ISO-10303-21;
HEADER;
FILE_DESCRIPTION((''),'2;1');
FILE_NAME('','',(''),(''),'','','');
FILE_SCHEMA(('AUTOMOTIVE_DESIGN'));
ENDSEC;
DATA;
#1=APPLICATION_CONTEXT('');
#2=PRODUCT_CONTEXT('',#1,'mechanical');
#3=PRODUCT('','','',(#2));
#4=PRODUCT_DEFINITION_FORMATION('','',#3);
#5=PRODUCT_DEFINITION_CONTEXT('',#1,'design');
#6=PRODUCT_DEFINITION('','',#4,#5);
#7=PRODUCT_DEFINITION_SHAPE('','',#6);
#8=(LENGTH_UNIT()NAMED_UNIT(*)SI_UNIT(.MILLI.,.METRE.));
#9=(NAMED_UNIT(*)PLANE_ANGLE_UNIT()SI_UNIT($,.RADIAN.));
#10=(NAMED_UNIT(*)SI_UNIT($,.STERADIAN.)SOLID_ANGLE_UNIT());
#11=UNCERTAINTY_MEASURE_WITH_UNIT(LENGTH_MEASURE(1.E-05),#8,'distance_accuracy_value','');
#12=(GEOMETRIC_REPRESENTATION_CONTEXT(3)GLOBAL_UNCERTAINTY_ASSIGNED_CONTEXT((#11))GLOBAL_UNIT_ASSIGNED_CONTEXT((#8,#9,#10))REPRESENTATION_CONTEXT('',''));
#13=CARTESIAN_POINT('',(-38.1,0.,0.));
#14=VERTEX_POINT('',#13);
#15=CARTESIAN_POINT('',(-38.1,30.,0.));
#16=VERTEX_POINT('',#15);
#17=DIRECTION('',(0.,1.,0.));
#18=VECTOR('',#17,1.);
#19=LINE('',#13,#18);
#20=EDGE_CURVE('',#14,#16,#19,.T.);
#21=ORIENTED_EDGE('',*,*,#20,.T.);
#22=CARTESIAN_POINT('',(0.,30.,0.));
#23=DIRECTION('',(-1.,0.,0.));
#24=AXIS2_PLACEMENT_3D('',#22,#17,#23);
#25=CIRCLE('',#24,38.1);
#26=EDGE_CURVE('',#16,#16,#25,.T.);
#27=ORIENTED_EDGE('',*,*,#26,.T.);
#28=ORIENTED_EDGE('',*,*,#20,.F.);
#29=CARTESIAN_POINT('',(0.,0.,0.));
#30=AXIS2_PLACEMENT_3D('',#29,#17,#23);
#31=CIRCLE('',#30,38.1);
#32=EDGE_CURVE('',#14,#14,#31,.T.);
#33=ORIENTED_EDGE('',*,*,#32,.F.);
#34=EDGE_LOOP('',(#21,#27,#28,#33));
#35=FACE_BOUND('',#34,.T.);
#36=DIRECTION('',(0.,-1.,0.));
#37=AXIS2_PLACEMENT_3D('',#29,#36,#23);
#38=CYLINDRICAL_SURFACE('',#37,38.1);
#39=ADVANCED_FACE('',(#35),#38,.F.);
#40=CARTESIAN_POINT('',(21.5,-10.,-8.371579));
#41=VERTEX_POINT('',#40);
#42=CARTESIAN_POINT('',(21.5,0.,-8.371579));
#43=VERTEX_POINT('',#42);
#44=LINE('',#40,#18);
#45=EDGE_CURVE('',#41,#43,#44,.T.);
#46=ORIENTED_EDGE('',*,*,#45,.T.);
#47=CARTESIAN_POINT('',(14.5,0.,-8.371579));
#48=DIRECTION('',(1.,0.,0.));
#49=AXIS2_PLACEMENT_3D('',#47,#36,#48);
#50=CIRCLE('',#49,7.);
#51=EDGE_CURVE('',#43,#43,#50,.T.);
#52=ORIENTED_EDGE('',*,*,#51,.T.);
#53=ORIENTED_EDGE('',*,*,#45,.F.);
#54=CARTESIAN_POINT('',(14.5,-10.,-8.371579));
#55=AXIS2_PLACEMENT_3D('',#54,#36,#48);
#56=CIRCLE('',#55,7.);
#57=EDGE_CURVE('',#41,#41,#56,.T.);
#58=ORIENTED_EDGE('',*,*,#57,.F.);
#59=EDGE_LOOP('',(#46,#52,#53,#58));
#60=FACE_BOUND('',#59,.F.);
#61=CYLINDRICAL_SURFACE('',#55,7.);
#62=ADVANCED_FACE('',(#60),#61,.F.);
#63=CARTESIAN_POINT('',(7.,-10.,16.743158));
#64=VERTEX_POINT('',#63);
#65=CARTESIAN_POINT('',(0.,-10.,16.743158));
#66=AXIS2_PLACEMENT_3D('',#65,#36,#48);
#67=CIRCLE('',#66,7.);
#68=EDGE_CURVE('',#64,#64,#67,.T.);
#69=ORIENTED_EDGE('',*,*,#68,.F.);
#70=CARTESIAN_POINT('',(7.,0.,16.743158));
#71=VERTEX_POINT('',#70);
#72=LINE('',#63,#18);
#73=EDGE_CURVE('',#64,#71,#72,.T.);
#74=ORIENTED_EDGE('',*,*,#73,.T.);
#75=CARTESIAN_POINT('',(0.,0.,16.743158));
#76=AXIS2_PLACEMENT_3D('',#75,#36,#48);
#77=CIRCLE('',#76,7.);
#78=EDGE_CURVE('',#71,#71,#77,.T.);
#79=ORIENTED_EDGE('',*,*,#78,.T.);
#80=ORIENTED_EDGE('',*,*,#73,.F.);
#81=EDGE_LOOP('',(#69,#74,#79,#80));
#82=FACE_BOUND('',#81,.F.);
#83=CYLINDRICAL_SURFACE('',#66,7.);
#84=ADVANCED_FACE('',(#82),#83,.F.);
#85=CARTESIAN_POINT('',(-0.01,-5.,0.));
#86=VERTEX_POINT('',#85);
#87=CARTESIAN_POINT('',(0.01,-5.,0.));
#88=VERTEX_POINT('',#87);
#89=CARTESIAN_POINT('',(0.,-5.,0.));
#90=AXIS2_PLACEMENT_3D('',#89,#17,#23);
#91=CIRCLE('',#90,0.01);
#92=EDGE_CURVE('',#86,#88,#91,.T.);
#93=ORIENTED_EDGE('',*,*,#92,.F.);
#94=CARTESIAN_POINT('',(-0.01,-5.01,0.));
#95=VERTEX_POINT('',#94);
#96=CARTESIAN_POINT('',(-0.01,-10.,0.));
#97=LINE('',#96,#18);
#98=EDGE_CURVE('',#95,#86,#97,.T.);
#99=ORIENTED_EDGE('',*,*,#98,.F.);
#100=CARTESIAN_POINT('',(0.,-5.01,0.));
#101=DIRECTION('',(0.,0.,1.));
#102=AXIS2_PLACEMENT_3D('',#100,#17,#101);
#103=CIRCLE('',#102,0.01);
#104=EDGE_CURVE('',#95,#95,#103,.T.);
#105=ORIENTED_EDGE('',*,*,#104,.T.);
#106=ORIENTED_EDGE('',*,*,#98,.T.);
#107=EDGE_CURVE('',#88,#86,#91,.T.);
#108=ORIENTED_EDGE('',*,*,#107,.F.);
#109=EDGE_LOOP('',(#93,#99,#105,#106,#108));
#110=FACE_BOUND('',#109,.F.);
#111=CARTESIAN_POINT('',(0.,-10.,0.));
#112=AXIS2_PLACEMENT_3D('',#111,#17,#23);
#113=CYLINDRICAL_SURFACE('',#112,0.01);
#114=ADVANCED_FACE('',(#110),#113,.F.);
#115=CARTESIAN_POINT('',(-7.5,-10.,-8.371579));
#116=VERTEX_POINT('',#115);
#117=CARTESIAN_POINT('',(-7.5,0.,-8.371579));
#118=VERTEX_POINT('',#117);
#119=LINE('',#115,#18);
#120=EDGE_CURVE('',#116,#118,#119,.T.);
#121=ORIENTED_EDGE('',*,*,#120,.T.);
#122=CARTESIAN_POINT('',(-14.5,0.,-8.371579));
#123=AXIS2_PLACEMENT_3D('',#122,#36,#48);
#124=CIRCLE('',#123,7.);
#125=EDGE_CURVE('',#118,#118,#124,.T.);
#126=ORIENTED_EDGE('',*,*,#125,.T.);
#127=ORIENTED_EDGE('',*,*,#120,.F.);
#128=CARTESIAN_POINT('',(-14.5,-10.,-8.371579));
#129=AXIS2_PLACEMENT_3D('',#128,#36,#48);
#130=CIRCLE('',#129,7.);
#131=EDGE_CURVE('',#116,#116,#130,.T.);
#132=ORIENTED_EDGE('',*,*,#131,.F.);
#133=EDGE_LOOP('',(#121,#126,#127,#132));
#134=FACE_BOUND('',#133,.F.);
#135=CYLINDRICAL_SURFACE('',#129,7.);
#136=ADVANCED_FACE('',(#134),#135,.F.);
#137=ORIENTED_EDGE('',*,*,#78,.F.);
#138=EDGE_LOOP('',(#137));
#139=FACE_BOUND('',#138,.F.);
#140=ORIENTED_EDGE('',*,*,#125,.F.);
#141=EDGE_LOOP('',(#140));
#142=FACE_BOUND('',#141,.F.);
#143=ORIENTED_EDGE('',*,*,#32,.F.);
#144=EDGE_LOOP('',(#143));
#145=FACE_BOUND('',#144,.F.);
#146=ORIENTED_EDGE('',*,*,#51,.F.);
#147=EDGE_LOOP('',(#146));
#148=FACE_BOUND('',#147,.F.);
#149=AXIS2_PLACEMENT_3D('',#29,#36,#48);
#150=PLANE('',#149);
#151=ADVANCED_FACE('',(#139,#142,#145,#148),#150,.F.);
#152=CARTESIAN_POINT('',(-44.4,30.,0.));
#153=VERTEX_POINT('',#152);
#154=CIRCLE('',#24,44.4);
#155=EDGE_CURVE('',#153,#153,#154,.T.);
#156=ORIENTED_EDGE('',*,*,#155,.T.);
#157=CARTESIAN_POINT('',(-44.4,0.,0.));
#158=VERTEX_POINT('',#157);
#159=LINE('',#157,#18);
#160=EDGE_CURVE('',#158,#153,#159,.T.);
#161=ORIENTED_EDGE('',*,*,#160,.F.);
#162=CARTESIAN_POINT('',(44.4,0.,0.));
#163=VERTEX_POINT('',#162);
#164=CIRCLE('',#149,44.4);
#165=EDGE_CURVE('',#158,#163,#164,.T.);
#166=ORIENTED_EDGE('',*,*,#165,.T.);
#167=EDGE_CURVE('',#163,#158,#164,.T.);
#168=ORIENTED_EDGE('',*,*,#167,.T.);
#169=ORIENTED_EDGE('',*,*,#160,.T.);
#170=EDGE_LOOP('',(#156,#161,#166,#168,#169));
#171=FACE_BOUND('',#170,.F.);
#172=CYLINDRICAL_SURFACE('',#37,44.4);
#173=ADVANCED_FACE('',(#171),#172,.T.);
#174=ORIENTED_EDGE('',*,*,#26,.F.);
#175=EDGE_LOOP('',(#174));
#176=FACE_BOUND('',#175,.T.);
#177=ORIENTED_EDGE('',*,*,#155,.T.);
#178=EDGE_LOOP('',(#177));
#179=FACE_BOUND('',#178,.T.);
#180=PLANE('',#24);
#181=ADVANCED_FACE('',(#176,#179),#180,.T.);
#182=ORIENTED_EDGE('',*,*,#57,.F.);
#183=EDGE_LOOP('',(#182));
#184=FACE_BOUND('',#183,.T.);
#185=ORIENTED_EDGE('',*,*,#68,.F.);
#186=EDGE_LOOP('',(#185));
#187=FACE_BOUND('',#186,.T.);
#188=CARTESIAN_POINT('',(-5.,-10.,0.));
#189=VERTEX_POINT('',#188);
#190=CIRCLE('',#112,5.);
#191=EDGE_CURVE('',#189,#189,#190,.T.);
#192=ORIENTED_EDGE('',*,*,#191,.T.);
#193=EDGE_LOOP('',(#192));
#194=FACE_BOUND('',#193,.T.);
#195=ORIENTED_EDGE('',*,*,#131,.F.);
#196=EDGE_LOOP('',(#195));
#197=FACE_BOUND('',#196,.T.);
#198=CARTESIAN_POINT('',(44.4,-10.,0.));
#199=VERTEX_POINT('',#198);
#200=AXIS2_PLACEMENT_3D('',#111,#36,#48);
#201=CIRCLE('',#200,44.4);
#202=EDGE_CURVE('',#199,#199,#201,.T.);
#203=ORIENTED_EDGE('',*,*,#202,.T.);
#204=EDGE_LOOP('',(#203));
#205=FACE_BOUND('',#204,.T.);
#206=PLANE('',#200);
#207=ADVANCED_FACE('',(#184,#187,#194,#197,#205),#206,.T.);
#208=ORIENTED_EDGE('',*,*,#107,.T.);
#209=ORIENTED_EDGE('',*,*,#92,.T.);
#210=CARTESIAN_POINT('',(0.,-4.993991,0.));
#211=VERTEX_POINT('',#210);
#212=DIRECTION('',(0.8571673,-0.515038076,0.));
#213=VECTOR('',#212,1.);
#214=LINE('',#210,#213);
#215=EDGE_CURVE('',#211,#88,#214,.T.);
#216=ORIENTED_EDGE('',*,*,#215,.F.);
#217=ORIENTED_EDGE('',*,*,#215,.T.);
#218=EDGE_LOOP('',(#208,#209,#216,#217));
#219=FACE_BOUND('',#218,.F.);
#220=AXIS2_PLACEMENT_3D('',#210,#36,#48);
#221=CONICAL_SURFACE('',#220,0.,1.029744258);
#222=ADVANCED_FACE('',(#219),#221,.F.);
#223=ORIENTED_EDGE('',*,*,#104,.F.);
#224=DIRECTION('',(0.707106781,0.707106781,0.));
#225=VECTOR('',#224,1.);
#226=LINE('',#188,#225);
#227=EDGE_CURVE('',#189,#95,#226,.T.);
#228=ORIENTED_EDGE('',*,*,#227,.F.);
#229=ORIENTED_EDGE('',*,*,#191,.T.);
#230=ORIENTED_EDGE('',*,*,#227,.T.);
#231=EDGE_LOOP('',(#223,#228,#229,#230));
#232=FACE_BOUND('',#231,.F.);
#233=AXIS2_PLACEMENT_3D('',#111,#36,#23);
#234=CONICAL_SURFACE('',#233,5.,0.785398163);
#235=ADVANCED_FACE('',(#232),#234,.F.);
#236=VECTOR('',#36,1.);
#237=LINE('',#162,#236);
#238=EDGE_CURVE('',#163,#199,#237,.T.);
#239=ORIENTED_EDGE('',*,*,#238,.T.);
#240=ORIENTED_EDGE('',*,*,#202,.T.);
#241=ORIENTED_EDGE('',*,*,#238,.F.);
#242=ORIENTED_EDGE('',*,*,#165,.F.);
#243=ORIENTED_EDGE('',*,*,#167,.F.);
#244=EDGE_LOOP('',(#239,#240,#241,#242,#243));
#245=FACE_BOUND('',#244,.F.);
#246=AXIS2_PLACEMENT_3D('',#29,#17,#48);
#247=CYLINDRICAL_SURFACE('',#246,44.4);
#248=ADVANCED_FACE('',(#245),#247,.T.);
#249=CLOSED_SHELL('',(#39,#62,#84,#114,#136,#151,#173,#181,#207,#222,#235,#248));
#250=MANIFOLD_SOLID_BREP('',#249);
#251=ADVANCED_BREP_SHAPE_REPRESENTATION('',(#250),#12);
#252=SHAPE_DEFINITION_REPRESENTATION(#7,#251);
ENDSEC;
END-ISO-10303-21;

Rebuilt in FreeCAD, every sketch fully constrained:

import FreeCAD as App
import Part
import Sketcher
from FreeCAD import Vector
Q = App.Units.Quantity

doc = App.newDocument("Part")
params = doc.addObject("Spreadsheet::Sheet", "Params")
for row, (alias, value) in enumerate([
    ("sketch1_diameter", "88.8 mm"),
    ("pad1_length", "10 mm"),
    ("sketch2_diameter", "88.8 mm"),
    ("sketch2_diameter2", "76.2 mm"),
    ("pad2_length", "30 mm"),
    ("sketch3_diameter", "14 mm"),
    ("sketch4_diameter", "0.02 mm"),
    ("hole_diameter", "0.02 mm"),
    ("hole_depth", "5 mm"),
    ("hole_csink_diameter", "10 mm"),
], start=1):
    params.set(f"A{row}", alias)
    params.set(f"B{row}", "=" + value)
    params.setAlias(f"B{row}", alias)

body = doc.addObject("PartDesign::Body", "Body")

sketch1 = body.newObject("Sketcher::SketchObject", "Sketch")
sketch1.AttachmentSupport = (doc.getObject("XZ_Plane"), [""])
sketch1.MapMode = "FlatFace"
sketch1.addGeometry(Part.Circle(Vector(0, 0, 0), Vector(0, 0, 1), 44.4), False)
sketch1.addConstraint([
    Sketcher.Constraint("Coincident", 0, 3, -1, 1),
    Sketcher.Constraint("Diameter", 0, Q("88.8 mm")),
])
sketch1.setExpression("Constraints[1]", "Params.sketch1_diameter")
pad1 = body.newObject("PartDesign::Pad", "Pad")
pad1.Profile = sketch1
pad1.setExpression("Length", "Params.pad1_length")

sketch2 = body.newObject("Sketcher::SketchObject", "Sketch001")
sketch2.AttachmentSupport = (doc.getObject("XZ_Plane"), [""])
sketch2.MapMode = "FlatFace"
sketch2.addGeometry([
    Part.Circle(Vector(0, 0, 0), Vector(0, 0, 1), 44.4),
    Part.Circle(Vector(0, 0, 0), Vector(0, 0, 1), 38.1),
], False)
sketch2.addConstraint([
    Sketcher.Constraint("Coincident", 0, 3, -1, 1),
    Sketcher.Constraint("Coincident", 1, 3, -1, 1),
    Sketcher.Constraint("Diameter", 0, Q("88.8 mm")),
    Sketcher.Constraint("Diameter", 1, Q("76.2 mm")),
])
sketch2.setExpression("Constraints[2]", "Params.sketch2_diameter")
sketch2.setExpression("Constraints[3]", "Params.sketch2_diameter2")
pad2 = body.newObject("PartDesign::Pad", "Pad001")
pad2.Profile = sketch2
pad2.setExpression("Length", "Params.pad2_length")
pad2.Reversed = True

sketch3 = body.newObject("Sketcher::SketchObject", "Sketch002")
sketch3.AttachmentSupport = (doc.getObject("XZ_Plane"), [""])
sketch3.MapMode = "FlatFace"
sketch3.AttachmentOffset = App.Placement(Vector(0, 0, 10), App.Rotation())
sketch3.addGeometry([
    Part.Circle(Vector(0, 16.743158, 0), Vector(0, 0, 1), 7),
    Part.Circle(Vector(-14.5, -8.371579, 0), Vector(0, 0, 1), 7),
    Part.Circle(Vector(14.5, -8.371579, 0), Vector(0, 0, 1), 7),
], False)
sketch3.addConstraint([
    Sketcher.Constraint("Equal", 0, 1),
    Sketcher.Constraint("Equal", 1, 2),
    Sketcher.Constraint("Symmetric", 1, 3, 2, 3, -2),
    Sketcher.Constraint("PointOnObject", 0, 3, -2),
    Sketcher.Constraint("Diameter", 0, Q("14 mm")),
    Sketcher.Constraint("DistanceX", 1, 3, 2, 3, Q("29 mm")),
    Sketcher.Constraint("DistanceY", 1, 3, -1, 1, Q("8.371579 mm")),
    Sketcher.Constraint("DistanceY", -1, 1, 0, 3, Q("16.743158 mm")),
])
sketch3.setExpression("Constraints[4]", "Params.sketch3_diameter")
pocket1 = body.newObject("PartDesign::Pocket", "Pocket")
pocket1.Profile = sketch3
pocket1.Type = "ThroughAll"

sketch4 = body.newObject("Sketcher::SketchObject", "Sketch003")
sketch4.AttachmentSupport = (doc.getObject("XZ_Plane"), [""])
sketch4.MapMode = "FlatFace"
sketch4.AttachmentOffset = App.Placement(Vector(0, 0, 10), App.Rotation())
sketch4.addGeometry(Part.Circle(Vector(0, 0, 0), Vector(0, 0, 1), 0.01), False)
sketch4.addConstraint([
    Sketcher.Constraint("Coincident", 0, 3, -1, 1),
    Sketcher.Constraint("Diameter", 0, Q("0.02 mm")),
])
sketch4.setExpression("Constraints[1]", "Params.sketch4_diameter")
doc.recompute()
hole = body.newObject("PartDesign::Hole", "Hole")
hole.Profile = sketch4
hole.ThreadType = "None"
hole.setExpression("Diameter", "Params.hole_diameter")
hole.DepthType = "Dimension"
hole.setExpression("Depth", "Params.hole_depth")
hole.DrillPoint = "Angled"
hole.DrillPointAngle = 118
hole.HoleCutType = "Countersink"
hole.setExpression("HoleCutDiameter", "Params.hole_csink_diameter")
hole.HoleCutCountersinkAngle = 90

doc.recompute()
